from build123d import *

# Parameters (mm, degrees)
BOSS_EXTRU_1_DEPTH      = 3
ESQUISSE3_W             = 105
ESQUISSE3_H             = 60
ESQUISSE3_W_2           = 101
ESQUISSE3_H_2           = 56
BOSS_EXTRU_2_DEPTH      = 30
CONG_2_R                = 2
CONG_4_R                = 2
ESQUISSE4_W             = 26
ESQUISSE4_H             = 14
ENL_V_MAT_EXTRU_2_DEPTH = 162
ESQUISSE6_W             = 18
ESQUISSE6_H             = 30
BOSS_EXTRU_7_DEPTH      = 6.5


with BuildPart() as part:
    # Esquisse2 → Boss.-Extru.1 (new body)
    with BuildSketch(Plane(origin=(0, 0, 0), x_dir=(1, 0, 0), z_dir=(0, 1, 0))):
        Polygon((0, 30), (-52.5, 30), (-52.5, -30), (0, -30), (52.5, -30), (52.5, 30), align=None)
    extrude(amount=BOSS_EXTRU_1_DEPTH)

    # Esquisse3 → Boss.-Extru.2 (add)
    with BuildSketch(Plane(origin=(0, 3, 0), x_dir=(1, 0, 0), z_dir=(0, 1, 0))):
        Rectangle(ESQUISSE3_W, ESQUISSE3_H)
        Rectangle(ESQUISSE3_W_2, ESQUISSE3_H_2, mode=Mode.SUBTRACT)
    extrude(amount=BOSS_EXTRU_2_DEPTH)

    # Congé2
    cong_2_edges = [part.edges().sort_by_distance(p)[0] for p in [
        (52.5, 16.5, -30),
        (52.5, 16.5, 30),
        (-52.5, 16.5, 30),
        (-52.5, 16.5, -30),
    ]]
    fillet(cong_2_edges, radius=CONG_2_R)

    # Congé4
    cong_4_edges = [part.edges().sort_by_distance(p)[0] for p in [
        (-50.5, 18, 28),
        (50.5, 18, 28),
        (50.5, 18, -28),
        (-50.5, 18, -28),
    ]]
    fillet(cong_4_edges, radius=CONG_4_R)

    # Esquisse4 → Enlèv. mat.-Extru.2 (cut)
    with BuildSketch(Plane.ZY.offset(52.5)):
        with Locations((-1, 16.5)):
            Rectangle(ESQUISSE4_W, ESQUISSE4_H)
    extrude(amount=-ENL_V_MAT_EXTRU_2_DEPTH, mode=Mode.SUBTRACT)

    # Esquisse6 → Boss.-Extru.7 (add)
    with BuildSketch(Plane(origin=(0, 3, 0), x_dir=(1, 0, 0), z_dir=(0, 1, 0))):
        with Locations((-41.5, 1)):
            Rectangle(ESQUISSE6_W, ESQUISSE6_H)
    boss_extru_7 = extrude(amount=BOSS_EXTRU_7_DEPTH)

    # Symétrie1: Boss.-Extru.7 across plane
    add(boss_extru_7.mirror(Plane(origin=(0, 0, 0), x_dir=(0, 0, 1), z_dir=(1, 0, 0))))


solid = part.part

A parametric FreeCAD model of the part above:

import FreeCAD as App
import Part
import Sketcher


def edges_at(feature, points):
    """Names of the edges that pass closest to the given points."""
    edges = feature.Shape.Edges
    near = lambda p: min(range(len(edges)), key=lambda i: edges[i].distToShape(Part.Vertex(*p))[0])
    return sorted({f"Edge{near(p) + 1}" for p in points})


def add_polygon(sketch, points):
    """Adds a closed chain of lines whose ends are joined by coincident constraints."""
    first, n = sketch.GeometryCount, len(points)
    for a, b in zip(points, points[1:] + points[:1]):
        sketch.addGeometry(Part.LineSegment(App.Vector(*a, 0), App.Vector(*b, 0)), False)
    for i in range(n):
        sketch.addConstraint(Sketcher.Constraint("Coincident", first + i, 2, first + (i + 1) % n, 1))

doc = App.newDocument("Part")
params = doc.addObject("Spreadsheet::Sheet", "Params")
for row, (alias, value) in enumerate([
    ("sketch1_width", "105 mm"),
    ("sketch1_height", "60 mm"),
    ("pad1_length", "3 mm"),
    ("sketch2_width", "105 mm"),
    ("sketch2_width2", "101 mm"),
    ("sketch2_height", "60 mm"),
    ("sketch2_height2", "56 mm"),
    ("pad2_length", "30 mm"),
    ("fillet_radius", "2 mm"),
    ("fillet2_radius", "2 mm"),
    ("sketch3_width", "14 mm"),
    ("sketch3_height", "26 mm"),
    ("pocket1_length", "162 mm"),
    ("sketch4_width", "18 mm"),
    ("sketch4_height", "30 mm"),
    ("pad3_length", "6.5 mm"),
], start=1):
    params.set(f"A{row}", alias)
    params.set(f"B{row}", "=" + value)
    params.setAlias(f"B{row}", alias)

body = doc.addObject("PartDesign::Body", "Body")

# Sketch on XZ plane
sketch1 = doc.addObject("Sketcher::SketchObject", "Sketch")
body.addObject(sketch1)
sketch1.AttachmentSupport = (doc.XZ_Plane, [""])
sketch1.MapMode = "FlatFace"
add_polygon(sketch1, [(-52, -30), (-52, 30), (52, 30), (52, -30)])  # lines 0-3
sketch1.addConstraint([
    Sketcher.Constraint("Vertical", 0),
    Sketcher.Constraint("Horizontal", 1),
    Sketcher.Constraint("Vertical", 2),
    Sketcher.Constraint("Horizontal", 3),
    Sketcher.Constraint("Symmetric", 0, 2, 2, 2, -1, 1),
    Sketcher.Constraint("DistanceX", 1, 1, 1, 2, 105.0),
    Sketcher.Constraint("DistanceY", 0, 1, 0, 2, 60.0),
])
sketch1.setExpression("Constraints[9]", "Params.sketch1_width")
sketch1.setExpression("Constraints[10]", "Params.sketch1_height")
pad1 = doc.addObject("PartDesign::Pad", "Pad")
body.addObject(pad1)
pad1.Profile = sketch1
pad1.setExpression("Length", "Params.pad1_length")
pad1.Reversed = True

# Sketch on XZ plane
sketch2 = doc.addObject("Sketcher::SketchObject", "Sketch001")
body.addObject(sketch2)
sketch2.AttachmentSupport = (doc.XZ_Plane, [""])
sketch2.MapMode = "FlatFace"
sketch2.AttachmentOffset = App.Placement(App.Vector(0, 0, -3), App.Rotation())
add_polygon(sketch2, [(-52, -30), (-52, 30), (52, 30), (52, -30)])  # lines 0-3
add_polygon(sketch2, [(50, 28), (-50, 28), (-50, -28), (50, -28)])  # lines 4-7
sketch2.addConstraint([
    Sketcher.Constraint("Vertical", 0),
    Sketcher.Constraint("Horizontal", 1),
    Sketcher.Constraint("Vertical", 2),
    Sketcher.Constraint("Horizontal", 3),
    Sketcher.Constraint("Horizontal", 4),
    Sketcher.Constraint("Vertical", 5),
    Sketcher.Constraint("Horizontal", 6),
    Sketcher.Constraint("Vertical", 7),
    Sketcher.Constraint("Symmetric", 0, 2, 2, 2, -1, 1),
    Sketcher.Constraint("Symmetric", 4, 2, 6, 2, -1, 1),
    Sketcher.Constraint("DistanceX", 1, 1, 1, 2, 105.0),
    Sketcher.Constraint("DistanceX", 4, 2, 4, 1, 101.0),
    Sketcher.Constraint("DistanceY", 0, 1, 0, 2, 60.0),
    Sketcher.Constraint("DistanceY", 5, 2, 5, 1, 56.0),
])
sketch2.setExpression("Constraints[18]", "Params.sketch2_width")
sketch2.setExpression("Constraints[19]", "Params.sketch2_width2")
sketch2.setExpression("Constraints[20]", "Params.sketch2_height")
sketch2.setExpression("Constraints[21]", "Params.sketch2_height2")
pad2 = doc.addObject("PartDesign::Pad", "Pad001")
body.addObject(pad2)
pad2.Profile = sketch2
pad2.setExpression("Length", "Params.pad2_length")
pad2.Reversed = True
doc.recompute()

fillet = doc.addObject("PartDesign::Fillet", "Fillet")
body.addObject(fillet)
fillet.Base = (pad2, edges_at(pad2, [
    (52.5, 16.5, -30),
    (52.5, 16.5, 30),
    (-52.5, 16.5, 30),
    (-52.5, 16.5, -30),
]))
fillet.setExpression("Radius", "Params.fillet_radius")
doc.recompute()

fillet2 = doc.addObject("PartDesign::Fillet", "Fillet001")
body.addObject(fillet2)
fillet2.Base = (fillet, edges_at(fillet, [
    (-50.5, 18, 28),
    (50.5, 18, 28),
    (50.5, 18, -28),
    (-50.5, 18, -28),
]))
fillet2.setExpression("Radius", "Params.fillet2_radius")

# Sketch on YZ plane
sketch3 = doc.addObject("Sketcher::SketchObject", "Sketch002")
body.addObject(sketch3)
sketch3.AttachmentSupport = (doc.YZ_Plane, [""])
sketch3.MapMode = "FlatFace"
sketch3.AttachmentOffset = App.Placement(App.Vector(0, 0, -52.5), App.Rotation())
add_polygon(sketch3, [(24, -14), (10, -14), (10, 12), (24, 12)])  # lines 0-3
sketch3.addConstraint([
    Sketcher.Constraint("Horizontal", 0),
    Sketcher.Constraint("Vertical", 1),
    Sketcher.Constraint("Horizontal", 2),
    Sketcher.Constraint("Vertical", 3),
    Sketcher.Constraint("DistanceX", 0, 2, 0, 1, 14.0),
    Sketcher.Constraint("DistanceY", 1, 1, 1, 2, 26.0),
    Sketcher.Constraint("DistanceY", 0, 2, -1, 1, 14.0),
    Sketcher.Constraint("DistanceX", -1, 1, 0, 2, 9.5),
])
sketch3.setExpression("Constraints[8]", "Params.sketch3_width")
sketch3.setExpression("Constraints[9]", "Params.sketch3_height")
pocket1 = doc.addObject("PartDesign::Pocket", "Pocket")
body.addObject(pocket1)
pocket1.Profile = sketch3
pocket1.setExpression("Length", "Params.pocket1_length")
pocket1.Reversed = True

# Sketch on XZ plane
sketch4 = doc.addObject("Sketcher::SketchObject", "Sketch003")
body.addObject(sketch4)
sketch4.AttachmentSupport = (doc.XZ_Plane, [""])
sketch4.MapMode = "FlatFace"
sketch4.AttachmentOffset = App.Placement(App.Vector(0, 0, -3), App.Rotation())
add_polygon(sketch4, [(-50, -16), (-50, 14), (-32, 14), (-32, -16)])  # lines 0-3
sketch4.addConstraint([
    Sketcher.Constraint("Vertical", 0),
    Sketcher.Constraint("Horizontal", 1),
    Sketcher.Constraint("Vertical", 2),
    Sketcher.Constraint("Horizontal", 3),
    Sketcher.Constraint("DistanceX", 1, 1, 1, 2, 18.0),
    Sketcher.Constraint("DistanceY", 0, 1, 0, 2, 30.0),
    Sketcher.Constraint("DistanceY", -1, 1, 0, 2, 14.0),
    Sketcher.Constraint("DistanceX", 0, 2, -1, 1, 50.5),
])
sketch4.setExpression("Constraints[8]", "Params.sketch4_width")
sketch4.setExpression("Constraints[9]", "Params.sketch4_height")
pad3 = doc.addObject("PartDesign::Pad", "Pad002")
body.addObject(pad3)
pad3.Profile = sketch4
pad3.setExpression("Length", "Params.pad3_length")
pad3.Reversed = True
doc.recompute()

mirrored = doc.addObject("PartDesign::Mirrored", "Mirrored")
body.addObject(mirrored)
mirrored.Originals = [pad3]
mirrored.MirrorPlane = (doc.YZ_Plane, [""])
body.Tip = mirrored

doc.recompute()
